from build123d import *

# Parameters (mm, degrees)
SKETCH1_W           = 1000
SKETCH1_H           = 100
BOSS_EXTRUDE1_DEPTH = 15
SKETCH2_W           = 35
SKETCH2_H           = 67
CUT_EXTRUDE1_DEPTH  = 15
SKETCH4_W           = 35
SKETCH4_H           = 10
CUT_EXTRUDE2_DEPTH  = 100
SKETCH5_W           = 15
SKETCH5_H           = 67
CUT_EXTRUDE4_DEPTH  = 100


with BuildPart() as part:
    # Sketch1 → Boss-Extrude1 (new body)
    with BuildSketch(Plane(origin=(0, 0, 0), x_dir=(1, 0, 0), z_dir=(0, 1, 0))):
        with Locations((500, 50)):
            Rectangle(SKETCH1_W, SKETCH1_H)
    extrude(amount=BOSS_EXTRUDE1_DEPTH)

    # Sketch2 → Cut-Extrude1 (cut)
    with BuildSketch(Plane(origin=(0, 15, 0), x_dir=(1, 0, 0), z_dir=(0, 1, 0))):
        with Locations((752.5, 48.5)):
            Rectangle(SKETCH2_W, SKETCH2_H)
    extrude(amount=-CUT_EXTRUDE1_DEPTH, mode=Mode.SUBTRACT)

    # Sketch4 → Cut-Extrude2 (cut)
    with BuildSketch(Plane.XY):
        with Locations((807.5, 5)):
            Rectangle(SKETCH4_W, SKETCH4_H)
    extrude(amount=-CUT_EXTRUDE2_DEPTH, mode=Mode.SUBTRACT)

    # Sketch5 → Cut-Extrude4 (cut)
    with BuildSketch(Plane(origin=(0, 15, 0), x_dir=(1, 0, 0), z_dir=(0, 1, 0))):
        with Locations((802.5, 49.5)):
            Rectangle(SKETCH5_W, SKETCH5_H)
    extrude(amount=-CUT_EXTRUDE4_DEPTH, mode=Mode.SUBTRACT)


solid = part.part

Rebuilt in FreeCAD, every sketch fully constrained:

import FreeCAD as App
import Part
import Sketcher


def add_polygon(sketch, points):
    """Adds a closed chain of lines whose ends are joined by coincident constraints."""
    first, n = sketch.GeometryCount, len(points)
    for a, b in zip(points, points[1:] + points[:1]):
        sketch.addGeometry(Part.LineSegment(App.Vector(*a, 0), App.Vector(*b, 0)), False)
    for i in range(n):
        sketch.addConstraint(Sketcher.Constraint("Coincident", first + i, 2, first + (i + 1) % n, 1))

doc = App.newDocument("Part")
body = doc.addObject("PartDesign::Body", "Body")

sketch1 = doc.addObject("Sketcher::SketchObject", "Sketch")
body.addObject(sketch1)
sketch1.AttachmentSupport = (doc.XZ_Plane, [""])
sketch1.MapMode = "FlatFace"
add_polygon(sketch1, [(0, -100), (0, 0), (1000, 0), (1000, -100)])
sketch1.addConstraint([
    Sketcher.Constraint("Vertical", 0),
    Sketcher.Constraint("Horizontal", 1),
    Sketcher.Constraint("Vertical", 2),
    Sketcher.Constraint("Horizontal", 3),
    Sketcher.Constraint("Coincident", 0, 2, -1, 1),
    Sketcher.Constraint("DistanceX", 1, 1, 1, 2, 1000.0),
    Sketcher.Constraint("DistanceY", 0, 1, 0, 2, 100.0),
])
pad1 = doc.addObject("PartDesign::Pad", "Pad")
body.addObject(pad1)
pad1.Profile = sketch1
pad1.Length = 15
pad1.Reversed = True

sketch2 = doc.addObject("Sketcher::SketchObject", "Sketch001")
body.addObject(sketch2)
sketch2.AttachmentSupport = (doc.XZ_Plane, [""])
sketch2.MapMode = "FlatFace"
sketch2.AttachmentOffset = App.Placement(App.Vector(0, 0, -15), App.Rotation())
add_polygon(sketch2, [(735, -82), (735, -15), (770, -15), (770, -82)])
sketch2.addConstraint([
    Sketcher.Constraint("Vertical", 0),
    Sketcher.Constraint("Horizontal", 1),
    Sketcher.Constraint("Vertical", 2),
    Sketcher.Constraint("Horizontal", 3),
    Sketcher.Constraint("DistanceX", 1, 1, 1, 2, 35.0),
    Sketcher.Constraint("DistanceY", 0, 1, 0, 2, 67.0),
    Sketcher.Constraint("DistanceX", -1, 1, 0, 2, 735.0),
    Sketcher.Constraint("DistanceY", 0, 2, -1, 1, 15.0),
])
pocket1 = doc.addObject("PartDesign::Pocket", "Pocket")
body.addObject(pocket1)
pocket1.Profile = sketch2
pocket1.Length = 15
pocket1.Reversed = True

sketch3 = doc.addObject("Sketcher::SketchObject", "Sketch002")
body.addObject(sketch3)
sketch3.AttachmentSupport = (doc.XY_Plane, [""])
sketch3.MapMode = "FlatFace"
add_polygon(sketch3, [(790, 10), (790, 0), (825, 0), (825, 10)])
sketch3.addConstraint([
    Sketcher.Constraint("Vertical", 0),
    Sketcher.Constraint("Horizontal", 1),
    Sketcher.Constraint("Vertical", 2),
    Sketcher.Constraint("Horizontal", 3),
    Sketcher.Constraint("PointOnObject", 0, 2, -1),
    Sketcher.Constraint("DistanceX", 1, 1, 1, 2, 35.0),
    Sketcher.Constraint("DistanceY", 0, 2, 0, 1, 10.0),
    Sketcher.Constraint("DistanceX", -1, 1, 0, 2, 790.0),
])
pocket2 = doc.addObject("PartDesign::Pocket", "Pocket001")
body.addObject(pocket2)
pocket2.Profile = sketch3
pocket2.Length = 100

sketch4 = doc.addObject("Sketcher::SketchObject", "Sketch003")
body.addObject(sketch4)
sketch4.AttachmentSupport = (doc.XZ_Plane, [""])
sketch4.MapMode = "FlatFace"
sketch4.AttachmentOffset = App.Placement(App.Vector(0, 0, -15), App.Rotation())
add_polygon(sketch4, [(795, -83), (795, -16), (810, -16), (810, -83)])
sketch4.addConstraint([
    Sketcher.Constraint("Vertical", 0),
    Sketcher.Constraint("Horizontal", 1),
    Sketcher.Constraint("Vertical", 2),
    Sketcher.Constraint("Horizontal", 3),
    Sketcher.Constraint("DistanceX", 1, 1, 1, 2, 15.0),
    Sketcher.Constraint("DistanceY", 0, 1, 0, 2, 67.0),
    Sketcher.Constraint("DistanceX", -1, 1, 0, 2, 795.0),
    Sketcher.Constraint("DistanceY", 0, 2, -1, 1, 16.0),
])
pocket3 = doc.addObject("PartDesign::Pocket", "Pocket002")
body.addObject(pocket3)
pocket3.Profile = sketch4
pocket3.Length = 100
pocket3.Reversed = True

doc.recompute()
